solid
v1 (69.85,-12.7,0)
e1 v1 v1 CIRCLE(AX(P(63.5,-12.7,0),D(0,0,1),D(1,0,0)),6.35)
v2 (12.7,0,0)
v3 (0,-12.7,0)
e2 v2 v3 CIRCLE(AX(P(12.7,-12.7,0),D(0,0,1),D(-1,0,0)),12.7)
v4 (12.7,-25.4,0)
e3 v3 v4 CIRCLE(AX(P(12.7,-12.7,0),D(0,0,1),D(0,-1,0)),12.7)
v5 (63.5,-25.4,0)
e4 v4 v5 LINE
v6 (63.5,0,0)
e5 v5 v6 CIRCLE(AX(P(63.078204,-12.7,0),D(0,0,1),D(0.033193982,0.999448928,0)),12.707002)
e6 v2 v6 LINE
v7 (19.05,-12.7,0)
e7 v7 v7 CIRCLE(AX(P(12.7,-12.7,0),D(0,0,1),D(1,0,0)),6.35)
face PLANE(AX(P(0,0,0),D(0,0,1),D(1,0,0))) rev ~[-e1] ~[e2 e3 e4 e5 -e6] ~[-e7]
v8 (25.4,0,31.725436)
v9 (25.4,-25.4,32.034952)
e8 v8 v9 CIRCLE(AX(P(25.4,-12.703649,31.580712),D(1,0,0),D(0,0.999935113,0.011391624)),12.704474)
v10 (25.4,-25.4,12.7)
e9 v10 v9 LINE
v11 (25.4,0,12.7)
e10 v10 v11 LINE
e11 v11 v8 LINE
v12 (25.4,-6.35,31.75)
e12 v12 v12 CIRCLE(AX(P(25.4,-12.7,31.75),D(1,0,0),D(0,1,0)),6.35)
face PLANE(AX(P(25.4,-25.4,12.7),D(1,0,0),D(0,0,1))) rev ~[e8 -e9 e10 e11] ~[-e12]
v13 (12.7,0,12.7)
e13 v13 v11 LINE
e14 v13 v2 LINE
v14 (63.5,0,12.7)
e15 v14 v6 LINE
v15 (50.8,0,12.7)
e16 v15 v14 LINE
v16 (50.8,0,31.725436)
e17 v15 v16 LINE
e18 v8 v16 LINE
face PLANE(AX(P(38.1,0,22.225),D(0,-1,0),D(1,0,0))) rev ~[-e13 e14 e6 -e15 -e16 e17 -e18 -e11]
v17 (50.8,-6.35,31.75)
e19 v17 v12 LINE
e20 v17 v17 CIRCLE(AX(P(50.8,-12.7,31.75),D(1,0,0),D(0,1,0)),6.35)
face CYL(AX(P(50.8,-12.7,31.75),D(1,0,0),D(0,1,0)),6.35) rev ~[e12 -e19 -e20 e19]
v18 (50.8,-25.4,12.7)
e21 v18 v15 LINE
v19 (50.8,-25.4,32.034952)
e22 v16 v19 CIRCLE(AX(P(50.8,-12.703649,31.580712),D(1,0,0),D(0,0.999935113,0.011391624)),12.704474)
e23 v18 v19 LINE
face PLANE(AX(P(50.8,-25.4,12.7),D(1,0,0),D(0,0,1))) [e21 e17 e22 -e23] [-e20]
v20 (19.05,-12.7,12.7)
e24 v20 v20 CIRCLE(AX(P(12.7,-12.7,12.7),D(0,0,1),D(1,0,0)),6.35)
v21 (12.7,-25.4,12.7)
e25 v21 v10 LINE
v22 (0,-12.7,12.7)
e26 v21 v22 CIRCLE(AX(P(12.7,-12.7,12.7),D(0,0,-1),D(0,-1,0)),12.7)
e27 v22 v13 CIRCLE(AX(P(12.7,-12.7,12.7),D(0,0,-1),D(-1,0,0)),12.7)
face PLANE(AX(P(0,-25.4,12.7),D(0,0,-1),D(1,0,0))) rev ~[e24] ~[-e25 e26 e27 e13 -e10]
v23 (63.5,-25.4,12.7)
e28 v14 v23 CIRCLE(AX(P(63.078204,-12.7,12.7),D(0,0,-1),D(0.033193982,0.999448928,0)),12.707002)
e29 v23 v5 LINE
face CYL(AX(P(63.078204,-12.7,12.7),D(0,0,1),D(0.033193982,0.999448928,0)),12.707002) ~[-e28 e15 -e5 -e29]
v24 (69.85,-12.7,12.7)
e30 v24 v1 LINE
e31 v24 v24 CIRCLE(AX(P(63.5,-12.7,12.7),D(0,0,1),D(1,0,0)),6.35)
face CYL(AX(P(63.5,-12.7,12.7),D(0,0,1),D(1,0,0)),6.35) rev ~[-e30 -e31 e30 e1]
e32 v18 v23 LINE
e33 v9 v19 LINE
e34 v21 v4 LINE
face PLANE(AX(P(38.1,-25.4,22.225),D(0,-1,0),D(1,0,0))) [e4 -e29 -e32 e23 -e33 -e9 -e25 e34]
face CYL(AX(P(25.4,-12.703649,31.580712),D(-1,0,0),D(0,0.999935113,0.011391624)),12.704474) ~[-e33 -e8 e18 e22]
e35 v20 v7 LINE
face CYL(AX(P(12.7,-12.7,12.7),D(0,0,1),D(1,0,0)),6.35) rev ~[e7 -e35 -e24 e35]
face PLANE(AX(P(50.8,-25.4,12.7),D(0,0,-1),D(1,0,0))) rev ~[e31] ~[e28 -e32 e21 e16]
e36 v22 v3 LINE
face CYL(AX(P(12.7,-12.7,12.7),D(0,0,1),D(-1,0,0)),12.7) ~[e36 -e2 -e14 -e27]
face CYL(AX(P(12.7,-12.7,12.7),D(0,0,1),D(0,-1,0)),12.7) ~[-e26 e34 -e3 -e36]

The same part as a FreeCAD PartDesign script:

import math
import FreeCAD as App
import Part
import Sketcher
Q = App.Units.Quantity


def add_polygon(sketch, points):
    """Adds a closed chain of lines whose ends are joined by coincident constraints."""
    first, n = sketch.GeometryCount, len(points)
    for a, b in zip(points, points[1:] + points[:1]):
        sketch.addGeometry(Part.LineSegment(App.Vector(*a, 0), App.Vector(*b, 0)), False)
    for i in range(n):
        sketch.addConstraint(Sketcher.Constraint("Coincident", first + i, 2, first + (i + 1) % n, 1))

doc = App.newDocument("Part")
body = doc.addObject("PartDesign::Body", "Body")

# Sketch on XZ plane
sketch1 = body.newObject("Sketcher::SketchObject", "Sketch")
sketch1.AttachmentSupport = (doc.getObject("XZ_Plane"), [""])
sketch1.MapMode = "FlatFace"
add_polygon(sketch1, [(0, 44), (0, 0), (76, 0), (76, 44)])  # lines 0-3
sketch1.addConstraint([
    Sketcher.Constraint("Vertical", 0),
    Sketcher.Constraint("Horizontal", 1),
    Sketcher.Constraint("Vertical", 2),
    Sketcher.Constraint("Horizontal", 3),
    Sketcher.Constraint("Coincident", 0, 2, -1, 1),
    Sketcher.Constraint("DistanceX", 1, 1, 1, 2, Q("3 in")),
    Sketcher.Constraint("DistanceY", 0, 2, 0, 1, Q("1.75 in")),
])
pad1 = body.newObject("PartDesign::Pad", "Pad")
pad1.Profile = sketch1
pad1.Length = Q("1 in")

# Sketch on XZ plane
sketch2 = body.newObject("Sketcher::SketchObject", "Sketch001")
sketch2.AttachmentSupport = (doc.getObject("XZ_Plane"), [""])
sketch2.MapMode = "FlatFace"
sketch2.AttachmentOffset = App.Placement(App.Vector(0, 0, 1 * 25.4), App.Rotation())
add_polygon(sketch2, [(0, 44), (0, 13), (25, 13), (25, 44)])  # lines 0-3
add_polygon(sketch2, [(51, 44), (51, 13), (76, 13), (76, 44)])  # lines 4-7
sketch2.addConstraint([
    Sketcher.Constraint("Vertical", 0),
    Sketcher.Constraint("Horizontal", 1),
    Sketcher.Constraint("Vertical", 2),
    Sketcher.Constraint("Horizontal", 3),
    Sketcher.Constraint("Vertical", 4),
    Sketcher.Constraint("Horizontal", 5),
    Sketcher.Constraint("Vertical", 6),
    Sketcher.Constraint("Horizontal", 7),
    Sketcher.Constraint("PointOnObject", 0, 2, -2),
    Sketcher.Constraint("Horizontal", 1, 2, 4, 2),
    Sketcher.Constraint("Horizontal", 3, 2, 6, 2),
    Sketcher.Constraint("Equal", 3, 5),
    Sketcher.Constraint("DistanceX", 1, 1, 1, 2, Q("1 in")),
    Sketcher.Constraint("DistanceX", -1, 1, 4, 2, Q("2 in")),
    Sketcher.Constraint("DistanceY", 0, 2, 0, 1, Q("1.25 in")),
    Sketcher.Constraint("DistanceY", -1, 1, 0, 2, Q("0.5 in")),
])
pocket1 = body.newObject("PartDesign::Pocket", "Pocket")
pocket1.Profile = sketch2
pocket1.Length = Q("1 in")

# Sketch on YZ plane
sketch3 = body.newObject("Sketcher::SketchObject", "Sketch002")
sketch3.AttachmentSupport = (doc.getObject("YZ_Plane"), [""])
sketch3.MapMode = "FlatFace"
sketch3.AttachmentOffset = App.Placement(App.Vector(0, 0, 2 * 25.4), App.Rotation())
sketch3.addGeometry(Part.Circle(App.Vector(-13, 32, 0), App.Vector(0, 0, 1), 6), False)
sketch3.addConstraint([
    Sketcher.Constraint("Diameter", 0, Q("0.5 in")),
    Sketcher.Constraint("DistanceX", 0, 3, -1, 1, Q("0.5 in")),
    Sketcher.Constraint("DistanceY", -1, 1, 0, 3, Q("1.25 in")),
])
pocket2 = body.newObject("PartDesign::Pocket", "Pocket001")
pocket2.Profile = sketch3
pocket2.Length = Q("1 in")

# Sketch on XY plane
sketch4 = body.newObject("Sketcher::SketchObject", "Sketch003")
sketch4.AttachmentSupport = (doc.getObject("XY_Plane"), [""])
sketch4.MapMode = "FlatFace"
sketch4.AttachmentOffset = App.Placement(App.Vector(0, 0, 0.5 * 25.4), App.Rotation())
sketch4.addGeometry([
    Part.Circle(App.Vector(13, -13, 0), App.Vector(0, 0, 1), 6),
    Part.Circle(App.Vector(64, -13, 0), App.Vector(0, 0, 1), 6),
], False)
sketch4.addConstraint([
    Sketcher.Constraint("Equal", 0, 1),
    Sketcher.Constraint("Horizontal", 0, 3, 1, 3),
    Sketcher.Constraint("Diameter", 0, Q("0.5 in")),
    Sketcher.Constraint("DistanceX", 0, 3, 1, 3, Q("2 in")),
    Sketcher.Constraint("DistanceX", -1, 1, 0, 3, Q("0.5 in")),
    Sketcher.Constraint("DistanceY", 0, 3, -1, 1, Q("0.5 in")),
])
pocket3 = body.newObject("PartDesign::Pocket", "Pocket002")
pocket3.Profile = sketch4
pocket3.Length = Q("1 in")

# Sketch on XY plane
sketch5 = body.newObject("Sketcher::SketchObject", "Sketch004")
sketch5.AttachmentSupport = (doc.getObject("XY_Plane"), [""])
sketch5.MapMode = "FlatFace"
sketch5.AttachmentOffset = App.Placement(App.Vector(0, 0, 0.5 * 25.4), App.Rotation())
sketch5.addGeometry([
    Part.ArcOfCircle(Part.Circle(App.Vector(13, -13, 0), App.Vector(0, 0, 1), 13), math.radians(90), math.radians(180)),  # 0
    Part.LineSegment(App.Vector(13, 0, 0), App.Vector(0, 0, 0)),  # 1
    Part.LineSegment(App.Vector(0, 0, 0), App.Vector(0, -13, 0)),  # 2
    Part.ArcOfCircle(Part.Circle(App.Vector(13, -13, 0), App.Vector(0, 0, 1), 13), math.radians(180), math.radians(270)),  # 3
    Part.LineSegment(App.Vector(0, -13, 0), App.Vector(0, -25, 0)),  # 4
    Part.LineSegment(App.Vector(0, -25, 0), App.Vector(13, -25, 0)),  # 5
], False)
sketch5.addConstraint([
    Sketcher.Constraint("Tangent", 0, 1, 1, 1),
    Sketcher.Constraint("Coincident", 1, 2, 2, 1),
    Sketcher.Constraint("Tangent", 2, 2, 0, 2),
    Sketcher.Constraint("Tangent", 3, 1, 4, 1),
    Sketcher.Constraint("Coincident", 4, 2, 5, 1),
    Sketcher.Constraint("Tangent", 5, 2, 3, 2),
    Sketcher.Constraint("Horizontal", 1),
    Sketcher.Constraint("Vertical", 2),
    Sketcher.Constraint("Vertical", 4),
    Sketcher.Constraint("Horizontal", 5),
    Sketcher.Constraint("Coincident", 1, 2, -1, 1),
    Sketcher.Constraint("Coincident", 3, 3, 0, 3),
    Sketcher.Constraint("Equal", 0, 3),
    Sketcher.Constraint("Radius", 0, Q("0.5 in")),
])
pocket4 = body.newObject("PartDesign::Pocket", "Pocket003")
pocket4.Profile = sketch5
pocket4.Length = Q("1 in")

# Sketch on XY plane
sketch6 = body.newObject("Sketcher::SketchObject", "Sketch005")
sketch6.AttachmentSupport = (doc.getObject("XY_Plane"), [""])
sketch6.MapMode = "FlatFace"
sketch6.AttachmentOffset = App.Placement(App.Vector(0, 0, 0.5 * 25.4), App.Rotation())
sketch6.addGeometry([
    Part.ArcOfCircle(Part.Circle(App.Vector(63, -13, 0), App.Vector(0, 0, 1), 13), math.radians(-88), math.radians(88)),
    Part.LineSegment(App.Vector(64, -25, 0), App.Vector(76, -25, 0)),
    Part.LineSegment(App.Vector(76, -25, 0), App.Vector(76, 0, 0)),
    Part.LineSegment(App.Vector(76, 0, 0), App.Vector(64, 0, 0)),
], False)
sketch6.addConstraint([
    Sketcher.Constraint("Coincident", 0, 1, 1, 1),
    Sketcher.Constraint("Coincident", 1, 2, 2, 1),
    Sketcher.Constraint("Coincident", 2, 2, 3, 1),
    Sketcher.Constraint("Coincident", 3, 2, 0, 2),
    Sketcher.Constraint("Horizontal", 1),
    Sketcher.Constraint("Vertical", 2),
    Sketcher.Constraint("Horizontal", 3),
    Sketcher.Constraint("PointOnObject", 2, 2, -1),
    Sketcher.Constraint("Vertical", 0, 1, 3, 2),
    Sketcher.Constraint("DistanceY", 2, 1, 2, 2, Q("1 in")),
    Sketcher.Constraint("DistanceX", 1, 1, 1, 2, Q("0.5 in")),
    Sketcher.Constraint("DistanceX", -1, 1, 1, 2, Q("3 in")),
    Sketcher.Constraint("Radius", 0, 12.707002),
])
pocket5 = body.newObject("PartDesign::Pocket", "Pocket004")
pocket5.Profile = sketch6
pocket5.Length = Q("1 in")

# Sketch on YZ plane
sketch7 = body.newObject("Sketcher::SketchObject", "Sketch006")
sketch7.AttachmentSupport = (doc.getObject("YZ_Plane"), [""])
sketch7.MapMode = "FlatFace"
sketch7.AttachmentOffset = App.Placement(App.Vector(0, 0, 1 * 25.4), App.Rotation())
sketch7.addGeometry([
    Part.ArcOfCircle(Part.Circle(App.Vector(-13, 32, 0), App.Vector(0, 0, 1), 13), math.radians(1), math.radians(178)),
    Part.LineSegment(App.Vector(-25, 32, 0), App.Vector(-25, 44, 0)),
    Part.LineSegment(App.Vector(-25, 44, 0), App.Vector(0, 44, 0)),
    Part.LineSegment(App.Vector(0, 44, 0), App.Vector(0, 32, 0)),
], False)
sketch7.addConstraint([
    Sketcher.Constraint("Coincident", 0, 2, 1, 1),
    Sketcher.Constraint("Coincident", 1, 2, 2, 1),
    Sketcher.Constraint("Coincident", 2, 2, 3, 1),
    Sketcher.Constraint("Coincident", 3, 2, 0, 1),
    Sketcher.Constraint("Vertical", 1),
    Sketcher.Constraint("Horizontal", 2),
    Sketcher.Constraint("Vertical", 3),
    Sketcher.Constraint("PointOnObject", 2, 2, -2),
    Sketcher.Constraint("DistanceX", 2, 1, 2, 2, Q("1 in")),
    Sketcher.Constraint("DistanceY", -1, 1, 1, 2, Q("1.75 in")),
    Sketcher.Constraint("Radius", 0, 12.704474),
    Sketcher.Constraint("DistanceY", 1, 1, 1, 2, 12.415048),
    Sketcher.Constraint("DistanceY", 3, 2, 3, 1, 12.724564),
])
pocket6 = body.newObject("PartDesign::Pocket", "Pocket005")
pocket6.Profile = sketch7
pocket6.Length = Q("1 in")
pocket6.Reversed = True

doc.recompute()
